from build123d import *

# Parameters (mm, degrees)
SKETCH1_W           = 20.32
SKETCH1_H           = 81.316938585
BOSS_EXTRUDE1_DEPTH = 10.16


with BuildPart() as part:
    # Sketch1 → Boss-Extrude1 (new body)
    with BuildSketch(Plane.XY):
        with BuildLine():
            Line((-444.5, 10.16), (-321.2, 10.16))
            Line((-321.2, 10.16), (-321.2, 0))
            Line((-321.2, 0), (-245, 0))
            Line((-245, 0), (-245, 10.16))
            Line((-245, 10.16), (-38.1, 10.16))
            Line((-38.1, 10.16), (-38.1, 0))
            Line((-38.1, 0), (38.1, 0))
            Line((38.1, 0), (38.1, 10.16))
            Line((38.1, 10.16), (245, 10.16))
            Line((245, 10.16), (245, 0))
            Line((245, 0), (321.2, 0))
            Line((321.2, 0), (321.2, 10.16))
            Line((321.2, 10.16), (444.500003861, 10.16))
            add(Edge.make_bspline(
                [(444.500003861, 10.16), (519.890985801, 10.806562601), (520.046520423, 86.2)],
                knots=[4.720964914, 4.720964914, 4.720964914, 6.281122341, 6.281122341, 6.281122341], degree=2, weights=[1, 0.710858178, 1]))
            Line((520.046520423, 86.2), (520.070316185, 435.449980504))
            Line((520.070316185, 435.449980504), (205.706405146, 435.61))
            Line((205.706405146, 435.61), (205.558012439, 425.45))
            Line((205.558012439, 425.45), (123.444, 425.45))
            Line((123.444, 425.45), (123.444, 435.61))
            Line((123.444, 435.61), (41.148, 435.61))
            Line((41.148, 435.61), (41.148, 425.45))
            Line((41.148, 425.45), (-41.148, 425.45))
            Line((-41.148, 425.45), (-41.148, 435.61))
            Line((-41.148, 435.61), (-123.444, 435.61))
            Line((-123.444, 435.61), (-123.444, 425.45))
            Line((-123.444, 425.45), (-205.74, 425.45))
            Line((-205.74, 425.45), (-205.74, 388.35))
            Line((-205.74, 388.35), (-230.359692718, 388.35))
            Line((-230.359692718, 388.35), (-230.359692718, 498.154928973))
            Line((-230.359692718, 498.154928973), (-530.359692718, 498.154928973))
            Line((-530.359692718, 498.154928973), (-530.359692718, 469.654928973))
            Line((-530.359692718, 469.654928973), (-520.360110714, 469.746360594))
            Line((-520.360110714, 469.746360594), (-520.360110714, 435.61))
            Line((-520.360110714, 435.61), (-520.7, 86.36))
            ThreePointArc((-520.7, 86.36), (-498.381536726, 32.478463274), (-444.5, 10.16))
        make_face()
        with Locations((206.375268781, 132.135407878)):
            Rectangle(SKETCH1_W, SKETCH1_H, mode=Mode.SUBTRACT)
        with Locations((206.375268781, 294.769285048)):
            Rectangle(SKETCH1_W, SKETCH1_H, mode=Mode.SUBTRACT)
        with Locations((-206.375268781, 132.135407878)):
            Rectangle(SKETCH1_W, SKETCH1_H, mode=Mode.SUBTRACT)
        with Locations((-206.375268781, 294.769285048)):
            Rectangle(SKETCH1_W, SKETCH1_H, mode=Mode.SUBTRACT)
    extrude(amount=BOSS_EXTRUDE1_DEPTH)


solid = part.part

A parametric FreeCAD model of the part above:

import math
import FreeCAD as App
import Part
import Sketcher
Q = App.Units.Quantity

doc = App.newDocument("Part")
body = doc.addObject("PartDesign::Body", "Body")

# Sketch on XY plane
sketch1 = doc.addObject("Sketcher::SketchObject", "Sketch")
body.addObject(sketch1)
sketch1.AttachmentSupport = (doc.XY_Plane, [""])
sketch1.MapMode = "FlatFace"
sketch1.addGeometry([
    Part.LineSegment(App.Vector(-444.5, 10.16, 0), App.Vector(-321.2, 10.16, 0)),  # 0
    Part.LineSegment(App.Vector(-321.2, 10.16, 0), App.Vector(-321.2, 0, 0)),  # 1
    Part.LineSegment(App.Vector(-321.2, 0, 0), App.Vector(-245, 0, 0)),  # 2
    Part.LineSegment(App.Vector(-245, 0, 0), App.Vector(-245, 10.16, 0)),  # 3
    Part.LineSegment(App.Vector(-245, 10.16, 0), App.Vector(-38.1, 10.16, 0)),  # 4
    Part.LineSegment(App.Vector(-38.1, 10.16, 0), App.Vector(-38.1, 0, 0)),  # 5
    Part.LineSegment(App.Vector(-38.1, 0, 0), App.Vector(38.1, 0, 0)),  # 6
    Part.LineSegment(App.Vector(38.1, 0, 0), App.Vector(38.1, 10.16, 0)),  # 7
    Part.LineSegment(App.Vector(38.1, 10.16, 0), App.Vector(245, 10.16, 0)),  # 8
    Part.LineSegment(App.Vector(245, 10.16, 0), App.Vector(245, 0, 0)),  # 9
    Part.LineSegment(App.Vector(245, 0, 0), App.Vector(321.2, 0, 0)),  # 10
    Part.LineSegment(App.Vector(321.2, 0, 0), App.Vector(321.2, 10.16, 0)),  # 11
    Part.LineSegment(App.Vector(321.2, 10.16, 0), App.Vector(444.500004, 10.16, 0)),  # 12
    Part.BSplineCurve([App.Vector(444.500004, 10.16, 0), App.Vector(519.890986, 10.806563, 0), App.Vector(520.04652, 86.2, 0)], [3, 3], [4.720964914, 6.281122341], False, 2, [1, 0.710858178, 1], False),  # 13
    Part.LineSegment(App.Vector(520.04652, 86.2, 0), App.Vector(520.070316, 435.449981, 0)),  # 14
    Part.LineSegment(App.Vector(520.070316, 435.449981, 0), App.Vector(205.706405, 435.61, 0)),  # 15
    Part.LineSegment(App.Vector(205.706405, 435.61, 0), App.Vector(205.558012, 425.45, 0)),  # 16
    Part.LineSegment(App.Vector(205.558012, 425.45, 0), App.Vector(123.444, 425.45, 0)),  # 17
    Part.LineSegment(App.Vector(123.444, 425.45, 0), App.Vector(123.444, 435.61, 0)),  # 18
    Part.LineSegment(App.Vector(123.444, 435.61, 0), App.Vector(41.148, 435.61, 0)),  # 19
    Part.LineSegment(App.Vector(41.148, 435.61, 0), App.Vector(41.148, 425.45, 0)),  # 20
    Part.LineSegment(App.Vector(41.148, 425.45, 0), App.Vector(-41.148, 425.45, 0)),  # 21
    Part.LineSegment(App.Vector(-41.148, 425.45, 0), App.Vector(-41.148, 435.61, 0)),  # 22
    Part.LineSegment(App.Vector(-41.148, 435.61, 0), App.Vector(-123.444, 435.61, 0)),  # 23
    Part.LineSegment(App.Vector(-123.444, 435.61, 0), App.Vector(-123.444, 425.45, 0)),  # 24
    Part.LineSegment(App.Vector(-123.444, 425.45, 0), App.Vector(-205.74, 425.45, 0)),  # 25
    Part.LineSegment(App.Vector(-205.74, 425.45, 0), App.Vector(-205.74, 388.35, 0)),  # 26
    Part.LineSegment(App.Vector(-205.74, 388.35, 0), App.Vector(-230.359693, 388.35, 0)),  # 27
    Part.LineSegment(App.Vector(-230.359693, 388.35, 0), App.Vector(-230.359693, 498.154929, 0)),  # 28
    Part.LineSegment(App.Vector(-230.359693, 498.154929, 0), App.Vector(-530.359693, 498.154929, 0)),  # 29
    Part.LineSegment(App.Vector(-530.359693, 498.154929, 0), App.Vector(-530.359693, 469.654929, 0)),  # 30
    Part.LineSegment(App.Vector(-530.359693, 469.654929, 0), App.Vector(-520.360111, 469.746361, 0)),  # 31
    Part.LineSegment(App.Vector(-520.360111, 469.746361, 0), App.Vector(-520.360111, 435.61, 0)),  # 32
    Part.LineSegment(App.Vector(-520.360111, 435.61, 0), App.Vector(-520.7, 86.36, 0)),  # 33
    Part.ArcOfCircle(Part.Circle(App.Vector(-444.5, 86.36, 0), App.Vector(0, 0, 1), 76.2), math.radians(-180), math.radians(-90)),  # 34
    Part.LineSegment(App.Vector(-196.215269, 91.476939, 0), App.Vector(-216.535269, 91.476939, 0)),  # 35
    Part.LineSegment(App.Vector(-216.535269, 91.476939, 0), App.Vector(-216.535269, 172.793877, 0)),  # 36
    Part.LineSegment(App.Vector(-216.535269, 172.793877, 0), App.Vector(-196.215269, 172.793877, 0)),  # 37
    Part.LineSegment(App.Vector(-196.215269, 172.793877, 0), App.Vector(-196.215269, 91.476939, 0)),  # 38
    Part.LineSegment(App.Vector(216.535269, 91.476939, 0), App.Vector(196.215269, 91.476939, 0)),  # 39
    Part.LineSegment(App.Vector(196.215269, 91.476939, 0), App.Vector(196.215269, 172.793877, 0)),  # 40
    Part.LineSegment(App.Vector(196.215269, 172.793877, 0), App.Vector(216.535269, 172.793877, 0)),  # 41
    Part.LineSegment(App.Vector(216.535269, 172.793877, 0), App.Vector(216.535269, 91.476939, 0)),  # 42
    Part.LineSegment(App.Vector(-196.215269, 254.110816, 0), App.Vector(-216.535269, 254.110816, 0)),  # 43
    Part.LineSegment(App.Vector(-216.535269, 254.110816, 0), App.Vector(-216.535269, 335.427754, 0)),  # 44
    Part.LineSegment(App.Vector(-216.535269, 335.427754, 0), App.Vector(-196.215269, 335.427754, 0)),  # 45
    Part.LineSegment(App.Vector(-196.215269, 335.427754, 0), App.Vector(-196.215269, 254.110816, 0)),  # 46
    Part.LineSegment(App.Vector(216.535269, 254.110816, 0), App.Vector(196.215269, 254.110816, 0)),  # 47
    Part.LineSegment(App.Vector(196.215269, 254.110816, 0), App.Vector(196.215269, 335.427754, 0)),  # 48
    Part.LineSegment(App.Vector(196.215269, 335.427754, 0), App.Vector(216.535269, 335.427754, 0)),  # 49
    Part.LineSegment(App.Vector(216.535269, 335.427754, 0), App.Vector(216.535269, 254.110816, 0)),  # 50
], False)
sketch1.addConstraint([
    Sketcher.Constraint("Block", 13),
    Sketcher.Constraint("Coincident", 0, 2, 1, 1),
    Sketcher.Constraint("Coincident", 1, 2, 2, 1),
    Sketcher.Constraint("Coincident", 2, 2, 3, 1),
    Sketcher.Constraint("Coincident", 3, 2, 4, 1),
    Sketcher.Constraint("Coincident", 4, 2, 5, 1),
    Sketcher.Constraint("Coincident", 5, 2, 6, 1),
    Sketcher.Constraint("Coincident", 6, 2, 7, 1),
    Sketcher.Constraint("Coincident", 7, 2, 8, 1),
    Sketcher.Constraint("Coincident", 8, 2, 9, 1),
    Sketcher.Constraint("Coincident", 9, 2, 10, 1),
    Sketcher.Constraint("Coincident", 10, 2, 11, 1),
    Sketcher.Constraint("Coincident", 11, 2, 12, 1),
    Sketcher.Constraint("Coincident", 12, 2, 13, 1),
    Sketcher.Constraint("Coincident", 13, 2, 14, 1),
    Sketcher.Constraint("Coincident", 14, 2, 15, 1),
    Sketcher.Constraint("Coincident", 15, 2, 16, 1),
    Sketcher.Constraint("Coincident", 16, 2, 17, 1),
    Sketcher.Constraint("Coincident", 17, 2, 18, 1),
    Sketcher.Constraint("Coincident", 18, 2, 19, 1),
    Sketcher.Constraint("Coincident", 19, 2, 20, 1),
    Sketcher.Constraint("Coincident", 20, 2, 21, 1),
    Sketcher.Constraint("Coincident", 21, 2, 22, 1),
    Sketcher.Constraint("Coincident", 22, 2, 23, 1),
    Sketcher.Constraint("Coincident", 23, 2, 24, 1),
    Sketcher.Constraint("Coincident", 24, 2, 25, 1),
    Sketcher.Constraint("Coincident", 25, 2, 26, 1),
    Sketcher.Constraint("Coincident", 26, 2, 27, 1),
    Sketcher.Constraint("Coincident", 27, 2, 28, 1),
    Sketcher.Constraint("Coincident", 28, 2, 29, 1),
    Sketcher.Constraint("Coincident", 29, 2, 30, 1),
    Sketcher.Constraint("Coincident", 30, 2, 31, 1),
    Sketcher.Constraint("Coincident", 31, 2, 32, 1),
    Sketcher.Constraint("Coincident", 32, 2, 33, 1),
    Sketcher.Constraint("Coincident", 33, 2, 34, 1),
    Sketcher.Constraint("Coincident", 34, 2, 0, 1),
    Sketcher.Constraint("Coincident", 35, 2, 36, 1),
    Sketcher.Constraint("Coincident", 36, 2, 37, 1),
    Sketcher.Constraint("Coincident", 37, 2, 38, 1),
    Sketcher.Constraint("Coincident", 38, 2, 35, 1),
    Sketcher.Constraint("Coincident", 39, 2, 40, 1),
    Sketcher.Constraint("Coincident", 40, 2, 41, 1),
    Sketcher.Constraint("Coincident", 41, 2, 42, 1),
    Sketcher.Constraint("Coincident", 42, 2, 39, 1),
    Sketcher.Constraint("Coincident", 43, 2, 44, 1),
    Sketcher.Constraint("Coincident", 44, 2, 45, 1),
    Sketcher.Constraint("Coincident", 45, 2, 46, 1),
    Sketcher.Constraint("Coincident", 46, 2, 43, 1),
    Sketcher.Constraint("Coincident", 47, 2, 48, 1),
    Sketcher.Constraint("Coincident", 48, 2, 49, 1),
    Sketcher.Constraint("Coincident", 49, 2, 50, 1),
    Sketcher.Constraint("Coincident", 50, 2, 47, 1),
    Sketcher.Constraint("Horizontal", 0),
    Sketcher.Constraint("Vertical", 1),
    Sketcher.Constraint("Horizontal", 2),
    Sketcher.Constraint("Vertical", 3),
    Sketcher.Constraint("Horizontal", 4),
    Sketcher.Constraint("Vertical", 5),
    Sketcher.Constraint("Horizontal", 6),
    Sketcher.Constraint("Vertical", 7),
    Sketcher.Constraint("Horizontal", 8),
    Sketcher.Constraint("Vertical", 9),
    Sketcher.Constraint("Horizontal", 10),
    Sketcher.Constraint("Vertical", 11),
    Sketcher.Constraint("Horizontal", 12),
    Sketcher.Constraint("Horizontal", 17),
    Sketcher.Constraint("Vertical", 18),
    Sketcher.Constraint("Horizontal", 19),
    Sketcher.Constraint("Vertical", 20),
    Sketcher.Constraint("Horizontal", 21),
    Sketcher.Constraint("Vertical", 22),
    Sketcher.Constraint("Horizontal", 23),
    Sketcher.Constraint("Vertical", 24),
    Sketcher.Constraint("Horizontal", 25),
    Sketcher.Constraint("Vertical", 26),
    Sketcher.Constraint("Horizontal", 27),
    Sketcher.Constraint("Vertical", 28),
    Sketcher.Constraint("Horizontal", 29),
    Sketcher.Constraint("Vertical", 30),
    Sketcher.Constraint("Vertical", 32),
    Sketcher.Constraint("Horizontal", 35),
    Sketcher.Constraint("Vertical", 36),
    Sketcher.Constraint("Horizontal", 37),
    Sketcher.Constraint("Vertical", 38),
    Sketcher.Constraint("Horizontal", 39),
    Sketcher.Constraint("Vertical", 40),
    Sketcher.Constraint("Horizontal", 41),
    Sketcher.Constraint("Vertical", 42),
    Sketcher.Constraint("Horizontal", 43),
    Sketcher.Constraint("Vertical", 44),
    Sketcher.Constraint("Horizontal", 45),
    Sketcher.Constraint("Vertical", 46),
    Sketcher.Constraint("Horizontal", 47),
    Sketcher.Constraint("Vertical", 48),
    Sketcher.Constraint("Horizontal", 49),
    Sketcher.Constraint("Vertical", 50),
    Sketcher.Constraint("PointOnObject", 1, 2, -1),
    Sketcher.Constraint("PointOnObject", 5, 2, -1),
    Sketcher.Constraint("PointOnObject", 9, 2, -1),
    Sketcher.Constraint("Radius", 34, Q("76.2 mm")),
    Sketcher.Constraint("DistanceX", 29, 2, 29, 1, Q("300 mm")),
    Sketcher.Constraint("Distance", 31, Q("10 mm")),
    Sketcher.Constraint("DistanceX", 0, 1, 0, 2, Q("123.3 mm")),
    Sketcher.Constraint("DistanceX", 2, 1, 2, 2, Q("76.2 mm")),
    Sketcher.Constraint("DistanceX", 4, 1, 4, 2, Q("206.9 mm")),
    Sketcher.Constraint("DistanceX", 6, 1, 6, 2, Q("76.2 mm")),
    Sketcher.Constraint("DistanceX", 8, 1, 8, 2, Q("206.9 mm")),
    Sketcher.Constraint("DistanceX", 10, 1, 10, 2, Q("76.2 mm")),
    Sketcher.Constraint("DistanceY", 26, 2, 26, 1, Q("37.1 mm")),
    Sketcher.Constraint("DistanceY", 30, 2, 30, 1, Q("28.5 mm")),
    Sketcher.Constraint("DistanceX", 2, 2, -1, 1, Q("245 mm")),
    Sketcher.Constraint("DistanceX", 35, 2, 35, 1, Q("20.32 mm")),
    Sketcher.Constraint("DistanceX", 39, 2, 39, 1, Q("20.32 mm")),
    Sketcher.Constraint("DistanceX", 43, 2, 43, 1, Q("20.32 mm")),
    Sketcher.Constraint("DistanceX", 47, 2, 47, 1, Q("20.32 mm")),
    Sketcher.Constraint("DistanceY", 1, 2, 1, 1, Q("10.16 mm")),
    Sketcher.Constraint("DistanceY", 3, 1, 3, 2, Q("10.16 mm")),
    Sketcher.Constraint("DistanceY", 7, 1, 7, 2, Q("10.16 mm")),
    Sketcher.Constraint("DistanceY", 18, 1, 18, 2, Q("10.16 mm")),
    Sketcher.Constraint("DistanceY", 20, 2, 20, 1, Q("10.16 mm")),
    Sketcher.Constraint("DistanceY", 22, 1, 22, 2, Q("10.16 mm")),
    Sketcher.Constraint("DistanceY", 24, 2, 24, 1, Q("10.16 mm")),
    Sketcher.Constraint("DistanceX", 34, 3, -1, 1, Q("444.5 mm")),
    Sketcher.Constraint("DistanceY", 0, 2, 33, 2, Q("76.2 mm")),
    Sketcher.Constraint("DistanceX", 19, 2, 19, 1, Q("82.296 mm")),
    Sketcher.Constraint("DistanceX", 21, 2, 21, 1, Q("82.296 mm")),
    Sketcher.Constraint("DistanceX", 23, 2, 23, 1, Q("82.296 mm")),
    Sketcher.Constraint("DistanceX", 25, 2, 25, 1, Q("82.296 mm")),
    Sketcher.Constraint("DistanceY", -1, 1, 15, 2, Q("435.61 mm")),
    Sketcher.Constraint("DistanceY", -1, 1, 16, 2, Q("425.45 mm")),
    Sketcher.Constraint("DistanceX", 25, 2, -1, 1, Q("205.74 mm")),
    Sketcher.Constraint("DistanceY", -1, 1, 32, 2, Q("435.61 mm")),
    Sketcher.Constraint("DistanceX", 43, 2, 37, 2, Q("20.32 mm")),
    Sketcher.Constraint("DistanceX", 47, 2, 41, 2, Q("20.32 mm")),
    Sketcher.Constraint("DistanceY", 28, 1, 28, 2, Q("109.804929 mm")),
    Sketcher.Constraint("DistanceY", 32, 2, 32, 1, Q("34.136361 mm")),
    Sketcher.Constraint("DistanceY", 36, 1, 36, 2, Q("81.316939 mm")),
    Sketcher.Constraint("DistanceY", 40, 1, 40, 2, Q("81.316939 mm")),
    Sketcher.Constraint("DistanceY", 44, 1, 44, 2, Q("81.316939 mm")),
    Sketcher.Constraint("DistanceY", 48, 1, 48, 2, Q("81.316939 mm")),
    Sketcher.Constraint("Distance", 14, Q("349.249981 mm")),
    Sketcher.Constraint("Distance", 15, Q("314.363952 mm")),
    Sketcher.Constraint("DistanceX", 17, 2, 17, 1, Q("82.114012 mm")),
    Sketcher.Constraint("DistanceX", 27, 2, 27, 1, Q("24.619693 mm")),
    Sketcher.Constraint("DistanceX", 35, 2, -1, 1, Q("216.535269 mm")),
    Sketcher.Constraint("DistanceY", -1, 1, 35, 2, Q("91.476939 mm")),
    Sketcher.Constraint("DistanceX", -1, 1, 39, 2, Q("196.215269 mm")),
    Sketcher.Constraint("DistanceY", -1, 1, 39, 2, Q("91.476939 mm")),
    Sketcher.Constraint("DistanceY", 36, 2, 43, 2, Q("81.316939 mm")),
    Sketcher.Constraint("DistanceY", 40, 2, 47, 2, Q("81.316939 mm")),
    Sketcher.Constraint("Distance", 16, Q("10.161084 mm")),
])
pad1 = doc.addObject("PartDesign::Pad", "Pad")
body.addObject(pad1)
pad1.Profile = sketch1
pad1.Length = 10.16

doc.recompute()
